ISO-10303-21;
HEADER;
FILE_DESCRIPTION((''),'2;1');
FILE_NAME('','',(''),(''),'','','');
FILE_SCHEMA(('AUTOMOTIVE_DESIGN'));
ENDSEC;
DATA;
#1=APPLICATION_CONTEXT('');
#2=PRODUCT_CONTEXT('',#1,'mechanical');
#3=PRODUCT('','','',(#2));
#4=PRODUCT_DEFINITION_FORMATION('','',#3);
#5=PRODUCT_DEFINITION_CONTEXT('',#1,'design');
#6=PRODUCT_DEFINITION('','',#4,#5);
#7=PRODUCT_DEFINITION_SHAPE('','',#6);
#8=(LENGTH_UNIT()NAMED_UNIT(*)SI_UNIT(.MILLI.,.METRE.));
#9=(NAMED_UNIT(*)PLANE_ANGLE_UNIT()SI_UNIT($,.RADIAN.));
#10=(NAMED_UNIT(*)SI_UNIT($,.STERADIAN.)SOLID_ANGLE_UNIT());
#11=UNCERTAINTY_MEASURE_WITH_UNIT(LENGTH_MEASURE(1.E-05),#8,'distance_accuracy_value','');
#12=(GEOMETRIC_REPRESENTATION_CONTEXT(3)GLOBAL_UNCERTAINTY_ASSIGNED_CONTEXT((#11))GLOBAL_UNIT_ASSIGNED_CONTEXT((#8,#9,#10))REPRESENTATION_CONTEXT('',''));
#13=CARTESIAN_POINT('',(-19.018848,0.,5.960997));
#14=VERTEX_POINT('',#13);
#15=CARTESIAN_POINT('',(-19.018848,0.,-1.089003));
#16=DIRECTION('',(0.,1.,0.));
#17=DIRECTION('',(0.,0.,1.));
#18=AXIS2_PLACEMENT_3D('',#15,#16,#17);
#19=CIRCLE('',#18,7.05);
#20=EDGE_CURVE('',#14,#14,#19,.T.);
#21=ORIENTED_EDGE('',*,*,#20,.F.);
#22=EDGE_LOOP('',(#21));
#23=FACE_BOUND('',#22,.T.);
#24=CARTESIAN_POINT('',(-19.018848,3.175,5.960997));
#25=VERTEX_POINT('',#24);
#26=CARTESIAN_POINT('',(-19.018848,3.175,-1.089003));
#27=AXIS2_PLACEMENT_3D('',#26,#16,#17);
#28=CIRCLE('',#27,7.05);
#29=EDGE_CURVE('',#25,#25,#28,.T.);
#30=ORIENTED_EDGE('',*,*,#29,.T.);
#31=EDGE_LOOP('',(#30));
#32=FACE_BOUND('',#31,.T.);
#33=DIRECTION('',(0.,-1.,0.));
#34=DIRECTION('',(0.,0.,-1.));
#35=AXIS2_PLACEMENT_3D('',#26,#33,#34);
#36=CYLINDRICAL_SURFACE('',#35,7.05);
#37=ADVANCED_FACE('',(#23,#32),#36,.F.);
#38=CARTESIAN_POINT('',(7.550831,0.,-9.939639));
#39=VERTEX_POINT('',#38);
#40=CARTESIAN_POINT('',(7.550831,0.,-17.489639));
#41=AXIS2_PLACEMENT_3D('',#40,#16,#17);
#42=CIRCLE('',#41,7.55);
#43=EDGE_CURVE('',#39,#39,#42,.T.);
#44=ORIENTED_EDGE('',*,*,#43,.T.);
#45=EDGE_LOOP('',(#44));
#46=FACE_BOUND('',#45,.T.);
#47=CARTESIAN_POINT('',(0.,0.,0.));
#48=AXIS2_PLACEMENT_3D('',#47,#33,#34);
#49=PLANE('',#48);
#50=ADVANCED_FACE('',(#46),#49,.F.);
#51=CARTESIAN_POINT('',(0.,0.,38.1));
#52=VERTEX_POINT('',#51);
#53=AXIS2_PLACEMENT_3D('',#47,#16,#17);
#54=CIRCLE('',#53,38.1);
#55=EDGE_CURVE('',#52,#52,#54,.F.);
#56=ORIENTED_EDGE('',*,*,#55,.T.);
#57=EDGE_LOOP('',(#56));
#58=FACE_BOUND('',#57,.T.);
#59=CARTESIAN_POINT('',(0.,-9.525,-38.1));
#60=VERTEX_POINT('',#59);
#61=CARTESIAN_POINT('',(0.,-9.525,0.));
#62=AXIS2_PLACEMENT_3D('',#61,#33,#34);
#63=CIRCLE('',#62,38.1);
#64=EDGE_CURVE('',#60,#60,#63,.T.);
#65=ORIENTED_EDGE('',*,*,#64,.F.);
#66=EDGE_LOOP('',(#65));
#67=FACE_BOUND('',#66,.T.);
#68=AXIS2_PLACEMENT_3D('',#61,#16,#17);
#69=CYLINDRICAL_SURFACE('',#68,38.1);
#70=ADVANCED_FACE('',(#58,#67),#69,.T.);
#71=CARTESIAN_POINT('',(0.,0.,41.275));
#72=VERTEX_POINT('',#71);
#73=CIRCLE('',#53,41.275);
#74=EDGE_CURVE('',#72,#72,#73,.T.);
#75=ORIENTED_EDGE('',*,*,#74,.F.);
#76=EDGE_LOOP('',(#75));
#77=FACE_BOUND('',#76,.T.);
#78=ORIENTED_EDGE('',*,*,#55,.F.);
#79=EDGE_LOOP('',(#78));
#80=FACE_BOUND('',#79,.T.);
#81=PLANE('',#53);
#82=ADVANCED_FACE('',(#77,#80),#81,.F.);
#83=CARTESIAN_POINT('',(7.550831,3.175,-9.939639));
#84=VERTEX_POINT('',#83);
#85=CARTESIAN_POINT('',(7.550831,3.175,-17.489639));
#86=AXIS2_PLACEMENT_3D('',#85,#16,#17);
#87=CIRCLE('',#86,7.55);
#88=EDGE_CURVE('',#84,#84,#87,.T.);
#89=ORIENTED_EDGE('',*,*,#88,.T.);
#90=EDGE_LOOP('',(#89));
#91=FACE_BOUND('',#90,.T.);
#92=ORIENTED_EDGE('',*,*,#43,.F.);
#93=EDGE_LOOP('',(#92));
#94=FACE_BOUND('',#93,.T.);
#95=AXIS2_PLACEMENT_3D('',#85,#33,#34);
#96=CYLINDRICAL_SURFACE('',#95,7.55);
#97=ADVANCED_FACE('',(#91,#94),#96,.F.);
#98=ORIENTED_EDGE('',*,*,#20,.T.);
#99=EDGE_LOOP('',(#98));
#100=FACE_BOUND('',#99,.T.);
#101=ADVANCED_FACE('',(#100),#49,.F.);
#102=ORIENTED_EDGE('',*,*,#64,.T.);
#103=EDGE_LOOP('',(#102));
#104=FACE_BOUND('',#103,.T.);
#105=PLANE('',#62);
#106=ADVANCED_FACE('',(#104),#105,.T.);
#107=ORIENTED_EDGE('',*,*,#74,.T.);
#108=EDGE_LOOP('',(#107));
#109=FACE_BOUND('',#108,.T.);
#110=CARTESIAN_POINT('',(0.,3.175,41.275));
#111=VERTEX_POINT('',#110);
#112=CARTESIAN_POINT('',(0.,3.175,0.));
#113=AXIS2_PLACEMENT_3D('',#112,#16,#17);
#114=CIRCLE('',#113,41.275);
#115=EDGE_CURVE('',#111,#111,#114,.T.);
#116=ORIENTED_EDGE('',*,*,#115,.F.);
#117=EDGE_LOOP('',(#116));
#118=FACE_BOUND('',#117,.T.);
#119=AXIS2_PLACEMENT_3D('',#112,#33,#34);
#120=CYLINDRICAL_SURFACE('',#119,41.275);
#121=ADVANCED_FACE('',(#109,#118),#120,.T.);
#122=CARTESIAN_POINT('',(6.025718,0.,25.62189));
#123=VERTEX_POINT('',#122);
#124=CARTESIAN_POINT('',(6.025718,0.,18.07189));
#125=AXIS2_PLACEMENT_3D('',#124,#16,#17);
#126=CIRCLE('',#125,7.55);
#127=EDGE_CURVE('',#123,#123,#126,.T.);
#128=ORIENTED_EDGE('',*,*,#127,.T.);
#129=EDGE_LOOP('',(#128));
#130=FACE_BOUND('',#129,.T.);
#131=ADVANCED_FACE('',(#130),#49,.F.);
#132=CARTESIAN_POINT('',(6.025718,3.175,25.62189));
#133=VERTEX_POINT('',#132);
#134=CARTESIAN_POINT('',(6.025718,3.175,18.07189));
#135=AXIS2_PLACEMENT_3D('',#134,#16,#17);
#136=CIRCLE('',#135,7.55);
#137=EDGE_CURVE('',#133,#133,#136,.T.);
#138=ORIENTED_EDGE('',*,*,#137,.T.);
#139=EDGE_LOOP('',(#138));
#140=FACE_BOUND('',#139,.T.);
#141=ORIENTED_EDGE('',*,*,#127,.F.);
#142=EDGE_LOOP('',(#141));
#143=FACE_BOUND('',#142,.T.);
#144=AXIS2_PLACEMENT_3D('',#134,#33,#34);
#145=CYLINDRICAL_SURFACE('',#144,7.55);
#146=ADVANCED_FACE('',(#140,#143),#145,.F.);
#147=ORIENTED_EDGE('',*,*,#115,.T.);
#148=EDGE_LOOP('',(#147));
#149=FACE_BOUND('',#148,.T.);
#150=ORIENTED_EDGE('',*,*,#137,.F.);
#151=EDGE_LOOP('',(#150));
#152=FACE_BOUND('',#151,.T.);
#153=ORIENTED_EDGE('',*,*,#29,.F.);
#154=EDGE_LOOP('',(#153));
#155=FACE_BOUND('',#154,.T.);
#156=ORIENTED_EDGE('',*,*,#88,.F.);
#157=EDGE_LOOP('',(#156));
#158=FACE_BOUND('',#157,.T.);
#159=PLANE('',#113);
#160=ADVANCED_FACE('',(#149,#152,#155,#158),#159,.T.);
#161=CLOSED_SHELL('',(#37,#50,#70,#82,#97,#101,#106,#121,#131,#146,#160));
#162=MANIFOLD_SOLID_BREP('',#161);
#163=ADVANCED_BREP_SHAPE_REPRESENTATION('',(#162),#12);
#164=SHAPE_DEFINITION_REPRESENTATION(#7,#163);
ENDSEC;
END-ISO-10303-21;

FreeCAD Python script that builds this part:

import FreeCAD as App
import Part
import Sketcher
from FreeCAD import Vector
Q = App.Units.Quantity

doc = App.newDocument("Part")
body = doc.addObject("PartDesign::Body", "Body")

sketch1 = doc.addObject("Sketcher::SketchObject", "Sketch")
body.addObject(sketch1)
sketch1.AttachmentSupport = (doc.XZ_Plane, [""])
sketch1.MapMode = "FlatFace"
sketch1.addGeometry(Part.Circle(Vector(0, 0, 0), Vector(0, 0, 1), 41), False)
sketch1.addGeometry(Part.Circle(Vector(6, 18, 0), Vector(0, 0, 1), 8), False)
sketch1.addGeometry(Part.Circle(Vector(-19, -1, 0), Vector(0, 0, 1), 7), False)
sketch1.addGeometry(Part.Circle(Vector(8, -17, 0), Vector(0, 0, 1), 8), False)
sketch1.addConstraint(Sketcher.Constraint("Coincident", 0, 3, -1, 1))
sketch1.addConstraint(Sketcher.Constraint("Equal", 1, 3))
sketch1.addConstraint(Sketcher.Constraint("Diameter", 0, Q("3.25 in")))
sketch1.addConstraint(Sketcher.Constraint("Diameter", 1, 15.1))
sketch1.addConstraint(Sketcher.Constraint("Diameter", 2, 14.1))
sketch1.addConstraint(Sketcher.Constraint("DistanceX", -1, 1, 1, 3, 6.025718))
sketch1.addConstraint(Sketcher.Constraint("DistanceY", -1, 1, 1, 3, 18.07189))
sketch1.addConstraint(Sketcher.Constraint("DistanceX", -1, 1, 3, 3, 7.550831))
sketch1.addConstraint(Sketcher.Constraint("DistanceY", 3, 3, -1, 1, 17.489639))
sketch1.addConstraint(Sketcher.Constraint("DistanceX", 2, 3, 3, 3, 26.569678))
sketch1.addConstraint(Sketcher.Constraint("DistanceY", 2, 3, -1, 1, 1.089003))
pad1 = doc.addObject("PartDesign::Pad", "Pad")
body.addObject(pad1)
pad1.Profile = sketch1
pad1.Length = Q("0.125 in")
pad1.Reversed = True

sketch2 = doc.addObject("Sketcher::SketchObject", "Sketch001")
body.addObject(sketch2)
sketch2.AttachmentSupport = (doc.XZ_Plane, [""])
sketch2.MapMode = "FlatFace"
sketch2.addGeometry(Part.Circle(Vector(0, 0, 0), Vector(0, 0, 1), 38), False)
sketch2.addConstraint(Sketcher.Constraint("Coincident", 0, 3, -1, 1))
sketch2.addConstraint(Sketcher.Constraint("Diameter", 0, Q("3 in")))
pad2 = doc.addObject("PartDesign::Pad", "Pad001")
body.addObject(pad2)
pad2.Profile = sketch2
pad2.Length = Q("0.375 in")

doc.recompute()
